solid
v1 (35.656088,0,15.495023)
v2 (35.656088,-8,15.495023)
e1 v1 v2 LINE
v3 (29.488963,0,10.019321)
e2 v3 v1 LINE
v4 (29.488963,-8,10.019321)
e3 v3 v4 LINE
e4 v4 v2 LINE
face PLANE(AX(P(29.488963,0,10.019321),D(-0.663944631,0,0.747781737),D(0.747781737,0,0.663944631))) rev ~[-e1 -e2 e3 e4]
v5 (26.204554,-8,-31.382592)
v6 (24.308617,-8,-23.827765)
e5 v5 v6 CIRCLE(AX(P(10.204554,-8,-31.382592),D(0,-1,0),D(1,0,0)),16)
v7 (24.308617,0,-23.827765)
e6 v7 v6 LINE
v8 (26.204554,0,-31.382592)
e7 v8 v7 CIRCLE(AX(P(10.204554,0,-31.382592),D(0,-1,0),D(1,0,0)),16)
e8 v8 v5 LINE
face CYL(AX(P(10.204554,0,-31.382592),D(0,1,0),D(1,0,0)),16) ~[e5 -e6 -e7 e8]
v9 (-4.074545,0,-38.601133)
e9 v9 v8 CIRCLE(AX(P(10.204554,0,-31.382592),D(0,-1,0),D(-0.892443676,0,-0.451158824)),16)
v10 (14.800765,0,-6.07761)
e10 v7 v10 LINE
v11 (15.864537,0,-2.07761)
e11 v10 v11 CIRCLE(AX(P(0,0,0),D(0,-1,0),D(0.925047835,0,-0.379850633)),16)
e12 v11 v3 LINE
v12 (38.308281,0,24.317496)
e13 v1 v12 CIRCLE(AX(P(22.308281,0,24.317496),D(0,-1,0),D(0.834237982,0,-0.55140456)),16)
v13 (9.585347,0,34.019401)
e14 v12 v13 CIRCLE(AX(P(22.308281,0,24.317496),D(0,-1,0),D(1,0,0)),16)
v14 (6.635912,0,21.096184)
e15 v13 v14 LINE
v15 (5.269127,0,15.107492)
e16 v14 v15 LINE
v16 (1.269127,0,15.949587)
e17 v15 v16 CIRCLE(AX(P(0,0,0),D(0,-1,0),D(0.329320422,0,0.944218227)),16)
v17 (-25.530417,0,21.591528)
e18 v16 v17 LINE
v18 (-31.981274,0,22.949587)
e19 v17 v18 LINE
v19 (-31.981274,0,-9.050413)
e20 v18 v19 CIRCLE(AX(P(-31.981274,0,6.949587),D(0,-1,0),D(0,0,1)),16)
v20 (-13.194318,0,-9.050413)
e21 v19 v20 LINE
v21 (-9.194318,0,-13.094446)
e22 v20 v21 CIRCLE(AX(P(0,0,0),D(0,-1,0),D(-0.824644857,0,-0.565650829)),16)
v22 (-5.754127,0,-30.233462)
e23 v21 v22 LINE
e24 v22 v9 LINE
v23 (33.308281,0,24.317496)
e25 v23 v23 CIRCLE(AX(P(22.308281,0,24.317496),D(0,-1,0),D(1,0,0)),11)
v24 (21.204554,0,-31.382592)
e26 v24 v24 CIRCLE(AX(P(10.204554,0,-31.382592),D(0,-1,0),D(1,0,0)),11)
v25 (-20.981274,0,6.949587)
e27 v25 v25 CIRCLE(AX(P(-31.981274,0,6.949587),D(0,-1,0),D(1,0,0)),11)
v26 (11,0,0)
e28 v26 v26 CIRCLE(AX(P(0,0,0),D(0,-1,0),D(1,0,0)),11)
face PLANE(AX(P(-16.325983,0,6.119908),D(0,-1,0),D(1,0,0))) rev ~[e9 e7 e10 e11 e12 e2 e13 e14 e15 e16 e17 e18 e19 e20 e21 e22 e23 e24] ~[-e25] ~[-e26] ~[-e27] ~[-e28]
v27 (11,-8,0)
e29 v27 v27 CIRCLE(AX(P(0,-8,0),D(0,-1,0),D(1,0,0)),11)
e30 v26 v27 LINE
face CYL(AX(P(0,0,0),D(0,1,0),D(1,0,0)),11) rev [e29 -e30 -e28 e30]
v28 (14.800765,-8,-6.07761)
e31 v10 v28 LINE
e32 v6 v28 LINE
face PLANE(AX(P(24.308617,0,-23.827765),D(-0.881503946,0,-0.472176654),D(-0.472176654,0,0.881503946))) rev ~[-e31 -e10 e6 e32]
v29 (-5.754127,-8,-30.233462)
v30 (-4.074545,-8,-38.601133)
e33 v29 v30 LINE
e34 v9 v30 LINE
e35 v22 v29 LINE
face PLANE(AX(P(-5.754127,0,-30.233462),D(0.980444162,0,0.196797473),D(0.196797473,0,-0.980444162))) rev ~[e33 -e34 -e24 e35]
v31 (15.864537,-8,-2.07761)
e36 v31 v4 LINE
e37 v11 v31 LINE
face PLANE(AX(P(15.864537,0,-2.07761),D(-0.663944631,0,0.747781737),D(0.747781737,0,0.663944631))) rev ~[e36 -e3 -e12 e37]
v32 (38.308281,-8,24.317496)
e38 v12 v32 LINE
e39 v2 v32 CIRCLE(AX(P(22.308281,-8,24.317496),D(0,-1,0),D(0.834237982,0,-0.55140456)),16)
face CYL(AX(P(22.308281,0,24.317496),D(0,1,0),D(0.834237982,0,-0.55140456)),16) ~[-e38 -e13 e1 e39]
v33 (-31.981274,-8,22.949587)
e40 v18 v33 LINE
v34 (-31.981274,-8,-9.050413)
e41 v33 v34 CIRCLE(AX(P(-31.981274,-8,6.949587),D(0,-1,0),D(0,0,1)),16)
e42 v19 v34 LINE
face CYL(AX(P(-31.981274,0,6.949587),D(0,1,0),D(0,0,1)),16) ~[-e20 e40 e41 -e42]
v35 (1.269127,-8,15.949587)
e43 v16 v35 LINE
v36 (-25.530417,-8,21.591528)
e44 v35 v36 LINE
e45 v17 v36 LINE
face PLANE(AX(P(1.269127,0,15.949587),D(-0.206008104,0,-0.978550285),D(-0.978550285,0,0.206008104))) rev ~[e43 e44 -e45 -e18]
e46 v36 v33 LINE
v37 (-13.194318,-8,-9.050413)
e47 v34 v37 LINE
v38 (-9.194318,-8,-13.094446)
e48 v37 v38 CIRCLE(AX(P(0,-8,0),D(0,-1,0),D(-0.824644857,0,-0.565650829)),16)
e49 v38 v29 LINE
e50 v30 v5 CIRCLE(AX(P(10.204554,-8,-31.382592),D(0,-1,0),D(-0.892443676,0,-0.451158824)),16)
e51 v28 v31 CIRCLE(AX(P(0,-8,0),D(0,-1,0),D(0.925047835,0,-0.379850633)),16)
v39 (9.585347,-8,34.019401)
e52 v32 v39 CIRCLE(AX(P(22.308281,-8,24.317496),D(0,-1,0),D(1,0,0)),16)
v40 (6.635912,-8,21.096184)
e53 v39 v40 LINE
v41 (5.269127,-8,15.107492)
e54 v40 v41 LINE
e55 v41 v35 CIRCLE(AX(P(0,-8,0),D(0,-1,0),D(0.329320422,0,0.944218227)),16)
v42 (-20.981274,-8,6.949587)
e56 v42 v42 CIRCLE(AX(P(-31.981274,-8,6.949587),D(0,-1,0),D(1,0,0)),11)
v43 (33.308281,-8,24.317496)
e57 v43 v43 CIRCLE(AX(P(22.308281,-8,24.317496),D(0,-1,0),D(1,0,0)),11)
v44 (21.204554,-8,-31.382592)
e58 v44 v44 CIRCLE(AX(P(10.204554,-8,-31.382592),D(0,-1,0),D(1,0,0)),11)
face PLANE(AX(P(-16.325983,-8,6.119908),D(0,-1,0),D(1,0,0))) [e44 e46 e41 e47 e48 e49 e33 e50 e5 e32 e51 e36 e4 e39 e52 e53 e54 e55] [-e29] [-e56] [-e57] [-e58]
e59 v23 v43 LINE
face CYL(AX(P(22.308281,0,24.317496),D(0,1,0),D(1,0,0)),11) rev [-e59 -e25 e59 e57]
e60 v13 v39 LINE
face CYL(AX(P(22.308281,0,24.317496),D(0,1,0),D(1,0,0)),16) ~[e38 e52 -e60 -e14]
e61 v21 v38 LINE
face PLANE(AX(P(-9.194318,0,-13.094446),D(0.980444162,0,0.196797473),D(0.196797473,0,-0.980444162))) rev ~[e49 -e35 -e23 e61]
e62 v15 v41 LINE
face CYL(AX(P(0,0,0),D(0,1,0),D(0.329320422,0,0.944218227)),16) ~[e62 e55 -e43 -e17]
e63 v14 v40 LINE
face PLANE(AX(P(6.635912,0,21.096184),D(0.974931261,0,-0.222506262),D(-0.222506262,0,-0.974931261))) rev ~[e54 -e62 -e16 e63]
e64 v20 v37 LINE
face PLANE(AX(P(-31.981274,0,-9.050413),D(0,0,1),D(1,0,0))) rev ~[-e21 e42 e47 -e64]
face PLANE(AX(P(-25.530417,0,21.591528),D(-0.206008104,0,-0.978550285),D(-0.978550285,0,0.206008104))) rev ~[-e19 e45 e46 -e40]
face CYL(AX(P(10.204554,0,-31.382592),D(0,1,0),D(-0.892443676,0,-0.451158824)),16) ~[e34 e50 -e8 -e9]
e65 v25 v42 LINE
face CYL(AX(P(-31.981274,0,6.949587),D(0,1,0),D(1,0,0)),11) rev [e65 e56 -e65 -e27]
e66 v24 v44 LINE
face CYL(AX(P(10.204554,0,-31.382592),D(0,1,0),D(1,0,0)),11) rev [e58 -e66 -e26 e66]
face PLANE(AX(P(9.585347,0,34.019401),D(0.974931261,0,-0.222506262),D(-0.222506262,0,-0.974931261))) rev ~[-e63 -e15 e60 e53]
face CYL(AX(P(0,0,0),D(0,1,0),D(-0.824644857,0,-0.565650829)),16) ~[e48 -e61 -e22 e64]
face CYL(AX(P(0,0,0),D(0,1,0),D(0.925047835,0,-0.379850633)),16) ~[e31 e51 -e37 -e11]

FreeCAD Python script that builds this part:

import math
import FreeCAD as App
import Part
import Sketcher

V = App.Vector

doc = App.newDocument("Part")
params = doc.addObject("Spreadsheet::Sheet", "Params")
for row, (alias, value) in enumerate([
    ("sketch1_diameter", "22 mm"),
    ("sketch1_radius", "16 mm"),
    ("pad1_length", "8 mm"),
], start=1):
    params.set(f"A{row}", alias)
    params.set(f"B{row}", "=" + value)
    params.setAlias(f"B{row}", alias)

body = doc.addObject("PartDesign::Body", "Body")

# Sketch on XZ plane
sketch1 = body.newObject("Sketcher::SketchObject", "Sketch")
sketch1.AttachmentSupport = (doc.getObject("XZ_Plane"), [""])
sketch1.MapMode = "FlatFace"
sketch1.addGeometry([
    Part.LineSegment(V(-32, -9.1, 0), V(-13.2, -9.1, 0)),  # 0
    Part.ArcOfCircle(Part.Circle(V(0, 0, 0), V(0, 0, 1), 16), math.radians(-146), math.radians(-125)),  # 1
    Part.LineSegment(V(-9.2, -13.1, 0), V(-5.8, -30.2, 0)),  # 2
    Part.LineSegment(V(-5.8, -30.2, 0), V(-4.1, -38.6, 0)),  # 3
    Part.ArcOfCircle(Part.Circle(V(10.2, -31.4, 0), V(0, 0, 1), 16), math.radians(-153), math.radians(0)),  # 4
    Part.ArcOfCircle(Part.Circle(V(10.2, -31.4, 0), V(0, 0, 1), 16), math.radians(0), math.radians(28)),  # 5
    Part.LineSegment(V(24.3, -23.8, 0), V(14.8, -6.1, 0)),  # 6
    Part.ArcOfCircle(Part.Circle(V(0, 0, 0), V(0, 0, 1), 16), math.radians(-22.32), math.radians(-7.46)),  # 7
    Part.LineSegment(V(15.9, -2.1, 0), V(29.5, 10, 0)),  # 8
    Part.LineSegment(V(29.5, 10, 0), V(35.7, 15.5, 0)),  # 9
    Part.ArcOfCircle(Part.Circle(V(22.3, 24.3, 0), V(0, 0, 1), 16), math.radians(-33), math.radians(0)),  # 10
    Part.ArcOfCircle(Part.Circle(V(22.3, 24.3, 0), V(0, 0, 1), 16), math.radians(0), math.radians(143)),  # 11
    Part.LineSegment(V(9.6, 34, 0), V(6.6, 21.1, 0)),  # 12
    Part.LineSegment(V(6.6, 21.1, 0), V(5.3, 15.1, 0)),  # 13
    Part.ArcOfCircle(Part.Circle(V(0, 0, 0), V(0, 0, 1), 16), math.radians(70.77), math.radians(85.45)),  # 14
    Part.LineSegment(V(1.3, 15.9, 0), V(-25.5, 21.6, 0)),  # 15
    Part.LineSegment(V(-25.5, 21.6, 0), V(-32, 22.9, 0)),  # 16
    Part.ArcOfCircle(Part.Circle(V(-32, 6.9, 0), V(0, 0, 1), 16), math.radians(90), math.radians(270)),  # 17
    Part.Circle(V(10.2, -31.4, 0), V(0, 0, 1), 11),  # 18
    Part.Circle(V(-32, 6.9, 0), V(0, 0, 1), 11),  # 19
    Part.Circle(V(0, 0, 0), V(0, 0, 1), 11),  # 20
    Part.Circle(V(22.3, 24.3, 0), V(0, 0, 1), 11),  # 21
], False)
sketch1.addConstraint([
    Sketcher.Constraint("Coincident", 0, 2, 1, 1),
    Sketcher.Constraint("Coincident", 1, 2, 2, 1),
    Sketcher.Constraint("Coincident", 2, 2, 3, 1),
    Sketcher.Constraint("Coincident", 3, 2, 4, 1),
    Sketcher.Constraint("Tangent", 4, 2, 5, 1),
    Sketcher.Constraint("Tangent", 5, 2, 6, 1),
    Sketcher.Constraint("Coincident", 6, 2, 7, 1),
    Sketcher.Constraint("Coincident", 7, 2, 8, 1),
    Sketcher.Constraint("Coincident", 8, 2, 9, 1),
    Sketcher.Constraint("Coincident", 9, 2, 10, 1),
    Sketcher.Constraint("Tangent", 10, 2, 11, 1),
    Sketcher.Constraint("Coincident", 11, 2, 12, 1),
    Sketcher.Constraint("Coincident", 12, 2, 13, 1),
    Sketcher.Constraint("Coincident", 13, 2, 14, 1),
    Sketcher.Constraint("Coincident", 14, 2, 15, 1),
    Sketcher.Constraint("Coincident", 15, 2, 16, 1),
    Sketcher.Constraint("Coincident", 16, 2, 17, 1),
    Sketcher.Constraint("Tangent", 17, 2, 0, 1),
    Sketcher.Constraint("Horizontal", 0),
    Sketcher.Constraint("Coincident", 1, 3, -1, 1),
    Sketcher.Constraint("Coincident", 7, 3, -1, 1),
    Sketcher.Constraint("Coincident", 14, 3, -1, 1),
    Sketcher.Constraint("Coincident", 20, 3, -1, 1),
    Sketcher.Constraint("Coincident", 18, 3, 4, 3),
    Sketcher.Constraint("Coincident", 19, 3, 17, 3),
    Sketcher.Constraint("Coincident", 21, 3, 10, 3),
    Sketcher.Constraint("Equal", 1, 4),
    Sketcher.Constraint("Equal", 4, 5),
    Sketcher.Constraint("Equal", 5, 7),
    Sketcher.Constraint("Equal", 7, 10),
    Sketcher.Constraint("Equal", 10, 11),
    Sketcher.Constraint("Equal", 11, 14),
    Sketcher.Constraint("Equal", 14, 17),
    Sketcher.Constraint("Equal", 18, 19),
    Sketcher.Constraint("Equal", 19, 20),
    Sketcher.Constraint("Equal", 20, 21),
    Sketcher.Constraint("Parallel", 2, 3),
    Sketcher.Constraint("Parallel", 8, 9),
    Sketcher.Constraint("Parallel", 12, 13),
    Sketcher.Constraint("Parallel", 15, 16),
    Sketcher.Constraint("Horizontal", 18, 3, 4, 2),
    Sketcher.Constraint("Horizontal", 21, 3, 10, 2),
    Sketcher.Constraint("Vertical", 19, 3, 16, 2),
    Sketcher.Constraint("Diameter", 18, 22.0),
    Sketcher.Constraint("Radius", 1, 16.0),
    Sketcher.Constraint("DistanceX", 0, 2, 1, 2, 4.0),
    Sketcher.Constraint("DistanceY", 6, 2, 7, 2, 4.0),
    Sketcher.Constraint("DistanceX", 14, 2, 13, 2, 4.0),
    Sketcher.Constraint("DistanceY", 14, 2, 16, 2, 7.0),
    Sketcher.Constraint("DistanceY", -1, 1, 11, 2, 34.019401),
    Sketcher.Constraint("DistanceX", 3, 2, 4, 3, 14.279099),
    Sketcher.Constraint("DistanceY", 8, 2, 9, 2, 5.475702),
    Sketcher.Constraint("DistanceX", 16, 2, 14, 2, 33.250401),
    Sketcher.Constraint("Distance", 2, 17.480869),
    Sketcher.Constraint("Distance", 8, 18.21979),
    Sketcher.Constraint("Distance", 13, 6.142681),
    Sketcher.Constraint("Distance", 16, 6.592259),
    Sketcher.Constraint("DistanceX", 0, 1, 0, 2, 18.786956),
    Sketcher.Constraint("DistanceY", 4, 3, -1, 1, 31.382592),
    Sketcher.Constraint("DistanceX", -1, 1, 10, 3, 22.308281),
    Sketcher.Constraint("DistanceY", 2, 2, -1, 1, 30.233462),
    Sketcher.Constraint("DistanceY", 6, 2, -1, 1, 6.07761),
    Sketcher.Constraint("DistanceY", -1, 1, 8, 2, 10.019321),
])
sketch1.setExpression("Constraints[43]", "Params.sketch1_diameter")
sketch1.setExpression("Constraints[44]", "Params.sketch1_radius")
pad1 = body.newObject("PartDesign::Pad", "Pad")
pad1.Profile = sketch1
pad1.setExpression("Length", "Params.pad1_length")

doc.recompute()
